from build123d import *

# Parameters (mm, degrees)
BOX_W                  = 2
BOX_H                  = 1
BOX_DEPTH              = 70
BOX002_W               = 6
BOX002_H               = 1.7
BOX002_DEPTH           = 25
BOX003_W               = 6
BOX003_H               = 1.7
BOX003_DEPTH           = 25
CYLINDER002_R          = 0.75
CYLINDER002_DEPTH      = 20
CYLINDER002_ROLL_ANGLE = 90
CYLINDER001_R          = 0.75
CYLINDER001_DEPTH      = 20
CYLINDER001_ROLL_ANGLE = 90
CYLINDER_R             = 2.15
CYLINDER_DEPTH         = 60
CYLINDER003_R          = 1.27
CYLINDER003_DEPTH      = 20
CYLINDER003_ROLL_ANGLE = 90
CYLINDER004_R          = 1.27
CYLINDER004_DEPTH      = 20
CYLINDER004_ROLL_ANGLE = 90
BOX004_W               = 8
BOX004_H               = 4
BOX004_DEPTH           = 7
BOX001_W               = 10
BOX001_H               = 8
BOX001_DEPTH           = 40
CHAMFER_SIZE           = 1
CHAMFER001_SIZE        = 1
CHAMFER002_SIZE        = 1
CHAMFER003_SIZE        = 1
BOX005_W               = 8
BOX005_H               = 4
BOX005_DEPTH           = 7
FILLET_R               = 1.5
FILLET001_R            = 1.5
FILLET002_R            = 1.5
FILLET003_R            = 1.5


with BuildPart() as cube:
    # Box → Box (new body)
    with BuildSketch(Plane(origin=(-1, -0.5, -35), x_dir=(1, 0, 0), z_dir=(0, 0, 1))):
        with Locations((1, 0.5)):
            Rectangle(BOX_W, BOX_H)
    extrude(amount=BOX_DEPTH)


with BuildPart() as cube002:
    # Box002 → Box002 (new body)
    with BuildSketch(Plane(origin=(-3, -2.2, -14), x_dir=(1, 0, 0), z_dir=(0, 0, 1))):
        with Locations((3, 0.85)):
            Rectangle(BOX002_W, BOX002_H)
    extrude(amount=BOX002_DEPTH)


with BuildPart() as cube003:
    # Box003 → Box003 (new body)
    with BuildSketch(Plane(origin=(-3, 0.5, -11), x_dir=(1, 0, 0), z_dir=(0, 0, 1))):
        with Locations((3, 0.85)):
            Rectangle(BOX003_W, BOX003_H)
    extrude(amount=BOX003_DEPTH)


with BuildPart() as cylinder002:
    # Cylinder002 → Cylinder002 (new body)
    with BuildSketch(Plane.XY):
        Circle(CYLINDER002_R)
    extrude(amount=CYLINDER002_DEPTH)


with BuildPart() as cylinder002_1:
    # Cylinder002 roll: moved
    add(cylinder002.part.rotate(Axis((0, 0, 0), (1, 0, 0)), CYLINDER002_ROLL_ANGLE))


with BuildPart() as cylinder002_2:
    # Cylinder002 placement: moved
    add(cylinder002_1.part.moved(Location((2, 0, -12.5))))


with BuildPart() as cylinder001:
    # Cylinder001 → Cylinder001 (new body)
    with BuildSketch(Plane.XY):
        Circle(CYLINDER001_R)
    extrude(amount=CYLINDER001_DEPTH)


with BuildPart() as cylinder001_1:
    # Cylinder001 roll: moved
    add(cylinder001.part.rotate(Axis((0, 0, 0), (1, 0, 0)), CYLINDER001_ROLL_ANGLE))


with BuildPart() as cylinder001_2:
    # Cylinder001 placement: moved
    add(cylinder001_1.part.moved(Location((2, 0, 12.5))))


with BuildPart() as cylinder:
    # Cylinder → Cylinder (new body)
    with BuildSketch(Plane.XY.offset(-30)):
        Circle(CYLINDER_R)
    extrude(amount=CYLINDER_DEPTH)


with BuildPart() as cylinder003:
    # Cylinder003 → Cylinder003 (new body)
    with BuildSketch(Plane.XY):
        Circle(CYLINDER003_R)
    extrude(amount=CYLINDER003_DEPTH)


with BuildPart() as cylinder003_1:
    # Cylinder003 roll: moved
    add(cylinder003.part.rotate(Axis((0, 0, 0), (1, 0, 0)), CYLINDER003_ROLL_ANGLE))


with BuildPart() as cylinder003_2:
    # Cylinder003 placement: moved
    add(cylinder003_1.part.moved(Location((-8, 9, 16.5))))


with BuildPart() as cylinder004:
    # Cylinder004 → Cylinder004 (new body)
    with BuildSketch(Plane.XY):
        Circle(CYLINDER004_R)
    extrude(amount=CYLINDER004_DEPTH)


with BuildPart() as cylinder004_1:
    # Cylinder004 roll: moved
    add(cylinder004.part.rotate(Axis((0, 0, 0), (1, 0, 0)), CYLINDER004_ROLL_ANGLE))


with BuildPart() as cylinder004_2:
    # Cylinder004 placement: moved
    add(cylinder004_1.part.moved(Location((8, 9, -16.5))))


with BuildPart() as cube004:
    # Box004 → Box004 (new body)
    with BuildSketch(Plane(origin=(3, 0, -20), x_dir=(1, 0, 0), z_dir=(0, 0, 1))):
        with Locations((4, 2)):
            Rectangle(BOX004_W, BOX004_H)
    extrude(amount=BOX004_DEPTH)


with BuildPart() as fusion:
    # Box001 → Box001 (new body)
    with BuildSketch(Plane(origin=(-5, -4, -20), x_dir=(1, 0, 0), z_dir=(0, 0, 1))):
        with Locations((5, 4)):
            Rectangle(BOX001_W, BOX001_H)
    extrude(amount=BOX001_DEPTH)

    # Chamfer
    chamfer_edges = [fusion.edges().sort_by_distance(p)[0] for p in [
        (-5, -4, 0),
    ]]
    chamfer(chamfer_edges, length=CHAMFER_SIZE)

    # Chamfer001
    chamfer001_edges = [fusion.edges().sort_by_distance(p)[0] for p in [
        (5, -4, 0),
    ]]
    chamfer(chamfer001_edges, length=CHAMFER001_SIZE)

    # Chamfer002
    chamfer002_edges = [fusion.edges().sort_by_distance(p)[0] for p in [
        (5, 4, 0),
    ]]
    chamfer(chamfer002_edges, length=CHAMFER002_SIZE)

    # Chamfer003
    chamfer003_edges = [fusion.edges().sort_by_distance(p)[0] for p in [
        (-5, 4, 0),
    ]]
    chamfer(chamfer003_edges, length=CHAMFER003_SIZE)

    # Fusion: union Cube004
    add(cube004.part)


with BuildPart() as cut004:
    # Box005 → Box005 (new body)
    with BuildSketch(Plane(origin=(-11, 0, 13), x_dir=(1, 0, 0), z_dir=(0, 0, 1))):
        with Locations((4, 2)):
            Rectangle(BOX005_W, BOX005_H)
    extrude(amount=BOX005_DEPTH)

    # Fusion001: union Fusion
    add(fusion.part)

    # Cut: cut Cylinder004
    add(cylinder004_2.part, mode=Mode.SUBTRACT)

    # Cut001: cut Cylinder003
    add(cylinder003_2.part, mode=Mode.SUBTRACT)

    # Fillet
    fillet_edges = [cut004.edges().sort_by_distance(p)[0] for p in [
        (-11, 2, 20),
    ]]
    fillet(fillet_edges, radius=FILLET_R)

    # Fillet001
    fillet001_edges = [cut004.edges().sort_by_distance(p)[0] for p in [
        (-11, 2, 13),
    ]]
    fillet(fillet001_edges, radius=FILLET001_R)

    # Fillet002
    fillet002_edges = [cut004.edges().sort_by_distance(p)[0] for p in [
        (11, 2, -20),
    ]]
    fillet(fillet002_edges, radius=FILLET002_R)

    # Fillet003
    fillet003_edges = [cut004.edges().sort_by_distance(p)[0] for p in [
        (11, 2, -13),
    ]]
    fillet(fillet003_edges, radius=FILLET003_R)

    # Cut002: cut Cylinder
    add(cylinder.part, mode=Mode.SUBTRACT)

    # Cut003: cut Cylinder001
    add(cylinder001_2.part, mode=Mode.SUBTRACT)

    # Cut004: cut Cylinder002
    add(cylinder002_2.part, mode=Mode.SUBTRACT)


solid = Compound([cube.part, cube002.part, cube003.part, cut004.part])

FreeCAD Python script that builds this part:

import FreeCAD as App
import Part
import Sketcher
from FreeCAD import Vector


def edges_at(feature, points):
    """Names of the edges that pass closest to the given points."""
    edges = feature.Shape.Edges
    near = lambda p: min(range(len(edges)), key=lambda i: edges[i].distToShape(Part.Vertex(*p))[0])
    return sorted({f"Edge{near(p) + 1}" for p in points})


def add_polygon(sketch, points):
    """Adds a closed chain of lines whose ends are joined by coincident constraints."""
    first, n = sketch.GeometryCount, len(points)
    for a, b in zip(points, points[1:] + points[:1]):
        sketch.addGeometry(Part.LineSegment(App.Vector(*a, 0), App.Vector(*b, 0)), False)
    for i in range(n):
        sketch.addConstraint(Sketcher.Constraint("Coincident", first + i, 2, first + (i + 1) % n, 1))

doc = App.newDocument("Part")
params = doc.addObject("Spreadsheet::Sheet", "Params")
for row, (alias, value) in enumerate([
    ("sketch1_width", "2 mm"),
    ("sketch1_height", "1 mm"),
    ("pad1_length", "70 mm"),
    ("sketch2_width", "6 mm"),
    ("sketch2_height", "1.7 mm"),
    ("pad2_length", "25 mm"),
    ("sketch3_width", "6 mm"),
    ("sketch3_height", "1.7 mm"),
    ("pad3_length", "25 mm"),
    ("sketch4_diameter", "1.5 mm"),
    ("pad4_length", "20 mm"),
    ("sketch5_diameter", "1.5 mm"),
    ("pad5_length", "20 mm"),
    ("sketch6_diameter", "4.3 mm"),
    ("pad6_length", "60 mm"),
    ("sketch7_diameter", "2.54 mm"),
    ("pad7_length", "20 mm"),
    ("sketch8_diameter", "2.54 mm"),
    ("pad8_length", "20 mm"),
    ("sketch9_width", "8 mm"),
    ("sketch9_height", "4 mm"),
    ("pad9_length", "7 mm"),
    ("sketch10_width", "10 mm"),
    ("sketch10_height", "8 mm"),
    ("pad10_length", "40 mm"),
    ("chamfer_size", "1 mm"),
    ("chamfer2_size", "1 mm"),
    ("chamfer3_size", "1 mm"),
    ("chamfer4_size", "1 mm"),
    ("sketch11_width", "8 mm"),
    ("sketch11_height", "4 mm"),
    ("pad11_length", "7 mm"),
    ("fillet_radius", "1.5 mm"),
    ("fillet2_radius", "1.5 mm"),
    ("fillet3_radius", "1.5 mm"),
    ("fillet4_radius", "1.5 mm"),
], start=1):
    params.set(f"A{row}", alias)
    params.set(f"B{row}", "=" + value)
    params.setAlias(f"B{row}", alias)

body = doc.addObject("PartDesign::Body", "Body")

# Sketch on XY plane
sketch1 = body.newObject("Sketcher::SketchObject", "Sketch")
sketch1.AttachmentSupport = (doc.getObject("XY_Plane"), [""])
sketch1.MapMode = "FlatFace"
sketch1.AttachmentOffset = App.Placement(Vector(0, 0, -35), App.Rotation())
add_polygon(sketch1, [(-1, 0.5), (-1, -0.5), (1, -0.5), (1, 0.5)])  # lines 0-3
sketch1.addConstraint([
    Sketcher.Constraint("Vertical", 0),
    Sketcher.Constraint("Horizontal", 1),
    Sketcher.Constraint("Vertical", 2),
    Sketcher.Constraint("Horizontal", 3),
    Sketcher.Constraint("Symmetric", 0, 2, 2, 2, -1, 1),
    Sketcher.Constraint("DistanceX", 1, 1, 1, 2, 2.0),
    Sketcher.Constraint("DistanceY", 0, 2, 0, 1, 1.0),
])
sketch1.setExpression("Constraints[9]", "Params.sketch1_width")
sketch1.setExpression("Constraints[10]", "Params.sketch1_height")
pad1 = body.newObject("PartDesign::Pad", "Pad")
pad1.Profile = sketch1
pad1.setExpression("Length", "Params.pad1_length")
body2 = doc.addObject("PartDesign::Body", "Body001")

# Sketch on XY plane
sketch2 = body2.newObject("Sketcher::SketchObject", "Sketch001")
sketch2.AttachmentSupport = (doc.getObject("XY_Plane001"), [""])
sketch2.MapMode = "FlatFace"
sketch2.AttachmentOffset = App.Placement(Vector(0, 0, -14), App.Rotation())
add_polygon(sketch2, [(-3, -0.5), (-3, -2.2), (3, -2.2), (3, -0.5)])  # lines 0-3
sketch2.addConstraint([
    Sketcher.Constraint("Vertical", 0),
    Sketcher.Constraint("Horizontal", 1),
    Sketcher.Constraint("Vertical", 2),
    Sketcher.Constraint("Horizontal", 3),
    Sketcher.Constraint("DistanceX", 1, 1, 1, 2, 6.0),
    Sketcher.Constraint("DistanceY", 0, 2, 0, 1, 1.7),
    Sketcher.Constraint("DistanceX", 0, 2, -1, 1, 3.0),
    Sketcher.Constraint("DistanceY", 0, 2, -1, 1, 2.2),
])
sketch2.setExpression("Constraints[8]", "Params.sketch2_width")
sketch2.setExpression("Constraints[9]", "Params.sketch2_height")
pad2 = body2.newObject("PartDesign::Pad", "Pad001")
pad2.Profile = sketch2
pad2.setExpression("Length", "Params.pad2_length")
body3 = doc.addObject("PartDesign::Body", "Body002")

# Sketch on XY plane
sketch3 = body3.newObject("Sketcher::SketchObject", "Sketch002")
sketch3.AttachmentSupport = (doc.getObject("XY_Plane002"), [""])
sketch3.MapMode = "FlatFace"
sketch3.AttachmentOffset = App.Placement(Vector(0, 0, -11), App.Rotation())
add_polygon(sketch3, [(-3, 2.2), (-3, 0.5), (3, 0.5), (3, 2.2)])  # lines 0-3
sketch3.addConstraint([
    Sketcher.Constraint("Vertical", 0),
    Sketcher.Constraint("Horizontal", 1),
    Sketcher.Constraint("Vertical", 2),
    Sketcher.Constraint("Horizontal", 3),
    Sketcher.Constraint("DistanceX", 1, 1, 1, 2, 6.0),
    Sketcher.Constraint("DistanceY", 0, 2, 0, 1, 1.7),
    Sketcher.Constraint("DistanceX", 0, 2, -1, 1, 3.0),
    Sketcher.Constraint("DistanceY", -1, 1, 0, 2, 0.5),
])
sketch3.setExpression("Constraints[8]", "Params.sketch3_width")
sketch3.setExpression("Constraints[9]", "Params.sketch3_height")
pad3 = body3.newObject("PartDesign::Pad", "Pad002")
pad3.Profile = sketch3
pad3.setExpression("Length", "Params.pad3_length")
body4 = doc.addObject("PartDesign::Body", "Body003")

# Sketch on XY plane
sketch4 = body4.newObject("Sketcher::SketchObject", "Sketch003")
sketch4.AttachmentSupport = (doc.getObject("XY_Plane003"), [""])
sketch4.MapMode = "FlatFace"
sketch4.addGeometry(Part.Circle(Vector(0, 0, 0), Vector(0, 0, 1), 0.8), False)
sketch4.addConstraint([
    Sketcher.Constraint("Coincident", 0, 3, -1, 1),
    Sketcher.Constraint("Diameter", 0, 1.5),
])
sketch4.setExpression("Constraints[1]", "Params.sketch4_diameter")
pad4 = body4.newObject("PartDesign::Pad", "Pad003")
pad4.Profile = sketch4
pad4.setExpression("Length", "Params.pad4_length")
body5 = doc.addObject("PartDesign::Body", "Body004")
doc.recompute()

body4.Placement = App.Placement(Vector(0, 0, 0), App.Rotation(Vector(1, 0, 0), 90))
boolean = body5.newObject("PartDesign::Boolean", "Boolean")
boolean.Type = "Fuse"
boolean.addObjects([body4])
body6 = doc.addObject("PartDesign::Body", "Body005")
doc.recompute()

body5.Placement = App.Placement(Vector(2, 0, -12.5), App.Rotation(Vector(0, 0, 1), 0))
boolean2 = body6.newObject("PartDesign::Boolean", "Boolean001")
boolean2.Type = "Fuse"
boolean2.addObjects([body5])
body7 = doc.addObject("PartDesign::Body", "Body006")

# Sketch on XY plane
sketch5 = body7.newObject("Sketcher::SketchObject", "Sketch004")
sketch5.AttachmentSupport = (doc.getObject("XY_Plane006"), [""])
sketch5.MapMode = "FlatFace"
sketch5.addGeometry(Part.Circle(Vector(0, 0, 0), Vector(0, 0, 1), 0.8), False)
sketch5.addConstraint([
    Sketcher.Constraint("Coincident", 0, 3, -1, 1),
    Sketcher.Constraint("Diameter", 0, 1.5),
])
sketch5.setExpression("Constraints[1]", "Params.sketch5_diameter")
pad5 = body7.newObject("PartDesign::Pad", "Pad004")
pad5.Profile = sketch5
pad5.setExpression("Length", "Params.pad5_length")
body8 = doc.addObject("PartDesign::Body", "Body007")
doc.recompute()

body7.Placement = App.Placement(Vector(0, 0, 0), App.Rotation(Vector(1, 0, 0), 90))
boolean3 = body8.newObject("PartDesign::Boolean", "Boolean002")
boolean3.Type = "Fuse"
boolean3.addObjects([body7])
body9 = doc.addObject("PartDesign::Body", "Body008")
doc.recompute()

body8.Placement = App.Placement(Vector(2, 0, 12.5), App.Rotation(Vector(0, 0, 1), 0))
boolean4 = body9.newObject("PartDesign::Boolean", "Boolean003")
boolean4.Type = "Fuse"
boolean4.addObjects([body8])
body10 = doc.addObject("PartDesign::Body", "Body009")

# Sketch on XY plane
sketch6 = body10.newObject("Sketcher::SketchObject", "Sketch005")
sketch6.AttachmentSupport = (doc.getObject("XY_Plane009"), [""])
sketch6.MapMode = "FlatFace"
sketch6.AttachmentOffset = App.Placement(Vector(0, 0, -30), App.Rotation())
sketch6.addGeometry(Part.Circle(Vector(0, 0, 0), Vector(0, 0, 1), 2.1), False)
sketch6.addConstraint([
    Sketcher.Constraint("Coincident", 0, 3, -1, 1),
    Sketcher.Constraint("Diameter", 0, 4.3),
])
sketch6.setExpression("Constraints[1]", "Params.sketch6_diameter")
pad6 = body10.newObject("PartDesign::Pad", "Pad005")
pad6.Profile = sketch6
pad6.setExpression("Length", "Params.pad6_length")
body11 = doc.addObject("PartDesign::Body", "Body010")

# Sketch on XY plane
sketch7 = body11.newObject("Sketcher::SketchObject", "Sketch006")
sketch7.AttachmentSupport = (doc.getObject("XY_Plane010"), [""])
sketch7.MapMode = "FlatFace"
sketch7.addGeometry(Part.Circle(Vector(0, 0, 0), Vector(0, 0, 1), 1.3), False)
sketch7.addConstraint([
    Sketcher.Constraint("Coincident", 0, 3, -1, 1),
    Sketcher.Constraint("Diameter", 0, 2.54),
])
sketch7.setExpression("Constraints[1]", "Params.sketch7_diameter")
pad7 = body11.newObject("PartDesign::Pad", "Pad006")
pad7.Profile = sketch7
pad7.setExpression("Length", "Params.pad7_length")
body12 = doc.addObject("PartDesign::Body", "Body011")
doc.recompute()

body11.Placement = App.Placement(Vector(0, 0, 0), App.Rotation(Vector(1, 0, 0), 90))
boolean5 = body12.newObject("PartDesign::Boolean", "Boolean004")
boolean5.Type = "Fuse"
boolean5.addObjects([body11])
body13 = doc.addObject("PartDesign::Body", "Body012")
doc.recompute()

body12.Placement = App.Placement(Vector(-8, 9, 16.5), App.Rotation(Vector(0, 0, 1), 0))
boolean6 = body13.newObject("PartDesign::Boolean", "Boolean005")
boolean6.Type = "Fuse"
boolean6.addObjects([body12])
body14 = doc.addObject("PartDesign::Body", "Body013")

# Sketch on XY plane
sketch8 = body14.newObject("Sketcher::SketchObject", "Sketch007")
sketch8.AttachmentSupport = (doc.getObject("XY_Plane013"), [""])
sketch8.MapMode = "FlatFace"
sketch8.addGeometry(Part.Circle(Vector(0, 0, 0), Vector(0, 0, 1), 1.3), False)
sketch8.addConstraint([
    Sketcher.Constraint("Coincident", 0, 3, -1, 1),
    Sketcher.Constraint("Diameter", 0, 2.54),
])
sketch8.setExpression("Constraints[1]", "Params.sketch8_diameter")
pad8 = body14.newObject("PartDesign::Pad", "Pad007")
pad8.Profile = sketch8
pad8.setExpression("Length", "Params.pad8_length")
body15 = doc.addObject("PartDesign::Body", "Body014")
doc.recompute()

body14.Placement = App.Placement(Vector(0, 0, 0), App.Rotation(Vector(1, 0, 0), 90))
boolean7 = body15.newObject("PartDesign::Boolean", "Boolean006")
boolean7.Type = "Fuse"
boolean7.addObjects([body14])
body16 = doc.addObject("PartDesign::Body", "Body015")
doc.recompute()

body15.Placement = App.Placement(Vector(8, 9, -16.5), App.Rotation(Vector(0, 0, 1), 0))
boolean8 = body16.newObject("PartDesign::Boolean", "Boolean007")
boolean8.Type = "Fuse"
boolean8.addObjects([body15])
body17 = doc.addObject("PartDesign::Body", "Body016")

# Sketch on XY plane
sketch9 = body17.newObject("Sketcher::SketchObject", "Sketch008")
sketch9.AttachmentSupport = (doc.getObject("XY_Plane016"), [""])
sketch9.MapMode = "FlatFace"
sketch9.AttachmentOffset = App.Placement(Vector(0, 0, -20), App.Rotation())
add_polygon(sketch9, [(3, 4), (3, 0), (11, 0), (11, 4)])  # lines 0-3
sketch9.addConstraint([
    Sketcher.Constraint("Vertical", 0),
    Sketcher.Constraint("Horizontal", 1),
    Sketcher.Constraint("Vertical", 2),
    Sketcher.Constraint("Horizontal", 3),
    Sketcher.Constraint("PointOnObject", 0, 2, -1),
    Sketcher.Constraint("DistanceX", 1, 1, 1, 2, 8.0),
    Sketcher.Constraint("DistanceY", 0, 2, 0, 1, 4.0),
    Sketcher.Constraint("DistanceX", -1, 1, 0, 2, 3.0),
])
sketch9.setExpression("Constraints[9]", "Params.sketch9_width")
sketch9.setExpression("Constraints[10]", "Params.sketch9_height")
pad9 = body17.newObject("PartDesign::Pad", "Pad008")
pad9.Profile = sketch9
pad9.setExpression("Length", "Params.pad9_length")
body18 = doc.addObject("PartDesign::Body", "Body017")

# Sketch on XY plane
sketch10 = body18.newObject("Sketcher::SketchObject", "Sketch009")
sketch10.AttachmentSupport = (doc.getObject("XY_Plane017"), [""])
sketch10.MapMode = "FlatFace"
sketch10.AttachmentOffset = App.Placement(Vector(0, 0, -20), App.Rotation())
add_polygon(sketch10, [(-5, 4), (-5, -4), (5, -4), (5, 4)])  # lines 0-3
sketch10.addConstraint([
    Sketcher.Constraint("Vertical", 0),
    Sketcher.Constraint("Horizontal", 1),
    Sketcher.Constraint("Vertical", 2),
    Sketcher.Constraint("Horizontal", 3),
    Sketcher.Constraint("Symmetric", 0, 2, 2, 2, -1, 1),
    Sketcher.Constraint("DistanceX", 1, 1, 1, 2, 10.0),
    Sketcher.Constraint("DistanceY", 0, 2, 0, 1, 8.0),
])
sketch10.setExpression("Constraints[9]", "Params.sketch10_width")
sketch10.setExpression("Constraints[10]", "Params.sketch10_height")
pad10 = body18.newObject("PartDesign::Pad", "Pad009")
pad10.Profile = sketch10
pad10.setExpression("Length", "Params.pad10_length")
doc.recompute()

chamfer = body18.newObject("PartDesign::Chamfer", "Chamfer")
chamfer.Base = (pad10, edges_at(pad10, [(-5, -4, 0)]))
chamfer.setExpression("Size", "Params.chamfer_size")
doc.recompute()

chamfer2 = body18.newObject("PartDesign::Chamfer", "Chamfer001")
chamfer2.Base = (chamfer, edges_at(chamfer, [(5, -4, 0)]))
chamfer2.setExpression("Size", "Params.chamfer2_size")
doc.recompute()

chamfer3 = body18.newObject("PartDesign::Chamfer", "Chamfer002")
chamfer3.Base = (chamfer2, edges_at(chamfer2, [(5, 4, 0)]))
chamfer3.setExpression("Size", "Params.chamfer3_size")
doc.recompute()

chamfer4 = body18.newObject("PartDesign::Chamfer", "Chamfer003")
chamfer4.Base = (chamfer3, edges_at(chamfer3, [(-5, 4, 0)]))
chamfer4.setExpression("Size", "Params.chamfer4_size")
doc.recompute()

boolean9 = body18.newObject("PartDesign::Boolean", "Boolean008")
boolean9.Type = "Fuse"
boolean9.addObjects([body17])
body19 = doc.addObject("PartDesign::Body", "Body018")

# Sketch on XY plane
sketch11 = body19.newObject("Sketcher::SketchObject", "Sketch010")
sketch11.AttachmentSupport = (doc.getObject("XY_Plane018"), [""])
sketch11.MapMode = "FlatFace"
sketch11.AttachmentOffset = App.Placement(Vector(0, 0, 13), App.Rotation())
add_polygon(sketch11, [(-11, 4), (-11, 0), (-3, 0), (-3, 4)])  # lines 0-3
sketch11.addConstraint([
    Sketcher.Constraint("Vertical", 0),
    Sketcher.Constraint("Horizontal", 1),
    Sketcher.Constraint("Vertical", 2),
    Sketcher.Constraint("Horizontal", 3),
    Sketcher.Constraint("PointOnObject", 0, 2, -1),
    Sketcher.Constraint("DistanceX", 1, 1, 1, 2, 8.0),
    Sketcher.Constraint("DistanceY", 0, 2, 0, 1, 4.0),
    Sketcher.Constraint("DistanceX", 0, 2, -1, 1, 11.0),
])
sketch11.setExpression("Constraints[9]", "Params.sketch11_width")
sketch11.setExpression("Constraints[10]", "Params.sketch11_height")
pad11 = body19.newObject("PartDesign::Pad", "Pad010")
pad11.Profile = sketch11
pad11.setExpression("Length", "Params.pad11_length")
doc.recompute()

boolean10 = body19.newObject("PartDesign::Boolean", "Boolean009")
boolean10.Type = "Fuse"
boolean10.addObjects([body18])
doc.recompute()

boolean11 = body19.newObject("PartDesign::Boolean", "Boolean010")
boolean11.Type = "Cut"
boolean11.addObjects([body16])
doc.recompute()

boolean12 = body19.newObject("PartDesign::Boolean", "Boolean011")
boolean12.Type = "Cut"
boolean12.addObjects([body13])
doc.recompute()

fillet = body19.newObject("PartDesign::Fillet", "Fillet")
fillet.Base = (boolean12, edges_at(boolean12, [(-11, 2, 20)]))
fillet.setExpression("Radius", "Params.fillet_radius")
doc.recompute()

fillet2 = body19.newObject("PartDesign::Fillet", "Fillet001")
fillet2.Base = (fillet, edges_at(fillet, [(-11, 2, 13)]))
fillet2.setExpression("Radius", "Params.fillet2_radius")
doc.recompute()

fillet3 = body19.newObject("PartDesign::Fillet", "Fillet002")
fillet3.Base = (fillet2, edges_at(fillet2, [(11, 2, -20)]))
fillet3.setExpression("Radius", "Params.fillet3_radius")
doc.recompute()

fillet4 = body19.newObject("PartDesign::Fillet", "Fillet003")
fillet4.Base = (fillet3, edges_at(fillet3, [(11, 2, -13)]))
fillet4.setExpression("Radius", "Params.fillet4_radius")
doc.recompute()

boolean13 = body19.newObject("PartDesign::Boolean", "Boolean012")
boolean13.Type = "Cut"
boolean13.addObjects([body10])
doc.recompute()

boolean14 = body19.newObject("PartDesign::Boolean", "Boolean013")
boolean14.Type = "Cut"
boolean14.addObjects([body9])
doc.recompute()

boolean15 = body19.newObject("PartDesign::Boolean", "Boolean014")
boolean15.Type = "Cut"
boolean15.addObjects([body6])

doc.recompute()
